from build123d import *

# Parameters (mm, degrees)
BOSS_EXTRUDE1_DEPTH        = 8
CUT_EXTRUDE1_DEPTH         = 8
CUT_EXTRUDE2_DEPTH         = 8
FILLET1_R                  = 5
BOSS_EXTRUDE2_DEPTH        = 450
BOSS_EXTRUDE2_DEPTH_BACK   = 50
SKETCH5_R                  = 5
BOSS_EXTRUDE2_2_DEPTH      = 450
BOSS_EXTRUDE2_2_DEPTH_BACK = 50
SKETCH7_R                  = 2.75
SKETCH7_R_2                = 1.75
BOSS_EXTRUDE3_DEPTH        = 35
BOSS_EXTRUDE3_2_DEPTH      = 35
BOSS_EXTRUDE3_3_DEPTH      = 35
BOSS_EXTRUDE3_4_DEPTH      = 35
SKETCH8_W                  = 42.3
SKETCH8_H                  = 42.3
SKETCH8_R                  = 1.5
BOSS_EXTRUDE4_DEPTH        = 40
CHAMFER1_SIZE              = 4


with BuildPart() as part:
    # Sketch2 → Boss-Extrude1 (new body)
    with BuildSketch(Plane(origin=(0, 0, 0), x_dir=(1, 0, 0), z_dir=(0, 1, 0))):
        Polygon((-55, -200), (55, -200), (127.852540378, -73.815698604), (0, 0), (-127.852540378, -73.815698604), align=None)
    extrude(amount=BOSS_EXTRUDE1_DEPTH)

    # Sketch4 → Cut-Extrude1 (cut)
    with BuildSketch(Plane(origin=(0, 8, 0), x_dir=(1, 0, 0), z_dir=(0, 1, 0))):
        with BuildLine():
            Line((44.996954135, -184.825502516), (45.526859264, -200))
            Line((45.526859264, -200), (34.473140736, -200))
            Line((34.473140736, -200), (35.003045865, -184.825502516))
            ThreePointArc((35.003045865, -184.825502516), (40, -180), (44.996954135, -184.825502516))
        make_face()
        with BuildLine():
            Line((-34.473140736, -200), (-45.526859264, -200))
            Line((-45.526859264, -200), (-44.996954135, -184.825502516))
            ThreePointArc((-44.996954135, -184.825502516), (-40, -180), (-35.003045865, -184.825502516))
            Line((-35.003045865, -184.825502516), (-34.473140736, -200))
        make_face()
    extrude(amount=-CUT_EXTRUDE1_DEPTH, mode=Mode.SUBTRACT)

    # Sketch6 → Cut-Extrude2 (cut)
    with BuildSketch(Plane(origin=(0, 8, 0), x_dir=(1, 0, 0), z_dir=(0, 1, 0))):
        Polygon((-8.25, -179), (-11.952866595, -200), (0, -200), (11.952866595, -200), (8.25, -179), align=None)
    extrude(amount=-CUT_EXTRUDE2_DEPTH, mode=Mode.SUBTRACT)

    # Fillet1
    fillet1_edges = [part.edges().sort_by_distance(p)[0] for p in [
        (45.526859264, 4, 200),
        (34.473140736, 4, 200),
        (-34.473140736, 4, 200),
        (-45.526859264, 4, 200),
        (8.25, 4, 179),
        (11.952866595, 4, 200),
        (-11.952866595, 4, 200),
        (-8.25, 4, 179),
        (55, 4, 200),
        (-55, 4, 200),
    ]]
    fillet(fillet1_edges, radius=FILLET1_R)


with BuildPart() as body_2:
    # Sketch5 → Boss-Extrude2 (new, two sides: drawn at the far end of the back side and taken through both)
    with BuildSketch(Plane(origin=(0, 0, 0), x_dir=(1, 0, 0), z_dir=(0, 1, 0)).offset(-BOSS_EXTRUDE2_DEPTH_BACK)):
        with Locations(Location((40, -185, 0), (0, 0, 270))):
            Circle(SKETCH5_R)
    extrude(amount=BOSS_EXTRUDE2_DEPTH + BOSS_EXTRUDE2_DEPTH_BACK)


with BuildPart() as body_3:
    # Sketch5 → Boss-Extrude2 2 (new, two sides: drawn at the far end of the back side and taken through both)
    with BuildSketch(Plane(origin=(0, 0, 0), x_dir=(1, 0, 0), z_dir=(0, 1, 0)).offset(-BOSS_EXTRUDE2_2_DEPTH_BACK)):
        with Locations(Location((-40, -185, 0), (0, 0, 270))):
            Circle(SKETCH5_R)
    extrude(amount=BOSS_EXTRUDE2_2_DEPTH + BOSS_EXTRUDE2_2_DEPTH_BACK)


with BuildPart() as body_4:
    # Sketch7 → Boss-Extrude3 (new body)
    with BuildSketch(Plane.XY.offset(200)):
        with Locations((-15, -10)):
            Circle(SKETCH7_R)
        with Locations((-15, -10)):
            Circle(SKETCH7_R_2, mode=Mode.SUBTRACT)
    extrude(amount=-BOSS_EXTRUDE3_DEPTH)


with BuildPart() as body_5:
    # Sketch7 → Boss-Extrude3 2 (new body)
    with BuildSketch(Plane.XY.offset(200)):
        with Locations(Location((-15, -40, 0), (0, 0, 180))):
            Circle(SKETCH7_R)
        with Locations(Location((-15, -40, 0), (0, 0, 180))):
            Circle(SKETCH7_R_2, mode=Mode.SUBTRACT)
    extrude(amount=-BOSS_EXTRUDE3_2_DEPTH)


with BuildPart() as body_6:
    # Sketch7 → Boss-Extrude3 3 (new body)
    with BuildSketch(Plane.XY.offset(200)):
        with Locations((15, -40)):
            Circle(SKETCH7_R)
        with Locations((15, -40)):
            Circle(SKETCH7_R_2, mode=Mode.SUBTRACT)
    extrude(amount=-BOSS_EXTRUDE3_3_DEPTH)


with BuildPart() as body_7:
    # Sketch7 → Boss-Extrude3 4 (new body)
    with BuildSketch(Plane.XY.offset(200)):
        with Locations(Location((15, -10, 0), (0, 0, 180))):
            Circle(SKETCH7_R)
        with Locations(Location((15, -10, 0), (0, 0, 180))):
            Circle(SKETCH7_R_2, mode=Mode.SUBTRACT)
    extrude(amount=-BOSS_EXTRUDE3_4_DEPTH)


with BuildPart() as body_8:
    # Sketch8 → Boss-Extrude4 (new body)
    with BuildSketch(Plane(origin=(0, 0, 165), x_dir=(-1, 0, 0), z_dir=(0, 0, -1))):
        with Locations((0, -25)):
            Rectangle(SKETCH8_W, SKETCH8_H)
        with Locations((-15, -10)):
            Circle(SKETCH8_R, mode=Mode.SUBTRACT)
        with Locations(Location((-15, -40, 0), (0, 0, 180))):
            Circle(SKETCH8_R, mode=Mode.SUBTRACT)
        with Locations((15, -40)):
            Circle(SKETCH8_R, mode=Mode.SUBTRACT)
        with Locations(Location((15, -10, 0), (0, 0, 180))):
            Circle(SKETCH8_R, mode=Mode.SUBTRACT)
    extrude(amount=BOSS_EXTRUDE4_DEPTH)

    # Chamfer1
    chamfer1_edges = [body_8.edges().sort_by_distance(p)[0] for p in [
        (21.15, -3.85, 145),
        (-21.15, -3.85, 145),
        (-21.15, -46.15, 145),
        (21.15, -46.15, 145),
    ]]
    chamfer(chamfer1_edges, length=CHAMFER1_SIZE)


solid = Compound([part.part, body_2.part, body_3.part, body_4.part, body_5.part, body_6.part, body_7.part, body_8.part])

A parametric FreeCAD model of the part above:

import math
import FreeCAD as App
import Part
import Sketcher
Q = App.Units.Quantity


def edges_at(feature, points):
    """Names of the edges that pass closest to the given points."""
    edges = feature.Shape.Edges
    near = lambda p: min(range(len(edges)), key=lambda i: edges[i].distToShape(Part.Vertex(*p))[0])
    return sorted({f"Edge{near(p) + 1}" for p in points})


def add_polygon(sketch, points):
    """Adds a closed chain of lines whose ends are joined by coincident constraints."""
    first, n = sketch.GeometryCount, len(points)
    for a, b in zip(points, points[1:] + points[:1]):
        sketch.addGeometry(Part.LineSegment(App.Vector(*a, 0), App.Vector(*b, 0)), False)
    for i in range(n):
        sketch.addConstraint(Sketcher.Constraint("Coincident", first + i, 2, first + (i + 1) % n, 1))

doc = App.newDocument("Part")
body = doc.addObject("PartDesign::Body", "Body")

sketch1 = doc.addObject("Sketcher::SketchObject", "Sketch")
body.addObject(sketch1)
sketch1.AttachmentSupport = (doc.XZ_Plane, [""])
sketch1.MapMode = "FlatFace"
add_polygon(sketch1, [(-55, 200), (55, 200), (128, 74), (0, 0), (-128, 74)])
sketch1.addConstraint(Sketcher.Constraint("Horizontal", 0))
sketch1.addConstraint(Sketcher.Constraint("Coincident", 2, 2, -1, 1))
sketch1.addConstraint(Sketcher.Constraint("Symmetric", 1, 2, 3, 2, -2))
sketch1.addConstraint(Sketcher.Constraint("Perpendicular", 1, 2))
sketch1.addConstraint(Sketcher.Constraint("Perpendicular", 3, 4))
sketch1.addConstraint(Sketcher.Constraint("DistanceX", 0, 1, 0, 2, 110.0))
sketch1.addConstraint(Sketcher.Constraint("Angle", 1, Q("-60 deg")))
sketch1.addConstraint(Sketcher.Constraint("DistanceY", -1, 1, 0, 2, 200.0))
pad1 = doc.addObject("PartDesign::Pad", "Pad")
body.addObject(pad1)
pad1.Profile = sketch1
pad1.Length = 8
pad1.Reversed = True

sketch2 = doc.addObject("Sketcher::SketchObject", "Sketch001")
body.addObject(sketch2)
sketch2.AttachmentSupport = (doc.XZ_Plane, [""])
sketch2.MapMode = "FlatFace"
sketch2.AttachmentOffset = App.Placement(App.Vector(0, 0, -8), App.Rotation())
sketch2.addGeometry(Part.LineSegment(App.Vector(45.526859, 200, 0), App.Vector(44.996954, 184.825503, 0)), False)
sketch2.addGeometry(Part.ArcOfCircle(Part.Circle(App.Vector(40, 185, 0), App.Vector(0, 0, 1), 5), math.radians(-178), math.radians(-2)), False)
sketch2.addGeometry(Part.LineSegment(App.Vector(35.003046, 184.825503, 0), App.Vector(34.473141, 200, 0)), False)
sketch2.addGeometry(Part.LineSegment(App.Vector(34.473141, 200, 0), App.Vector(45.526859, 200, 0)), False)
sketch2.addGeometry(Part.LineSegment(App.Vector(-45.526859, 200, 0), App.Vector(-34.473141, 200, 0)), False)
sketch2.addGeometry(Part.LineSegment(App.Vector(-34.473141, 200, 0), App.Vector(-35.003046, 184.825503, 0)), False)
sketch2.addGeometry(Part.ArcOfCircle(Part.Circle(App.Vector(-40, 185, 0), App.Vector(0, 0, 1), 5), math.radians(-178), math.radians(-2)), False)
sketch2.addGeometry(Part.LineSegment(App.Vector(-44.996954, 184.825503, 0), App.Vector(-45.526859, 200, 0)), False)
sketch2.addConstraint(Sketcher.Constraint("Tangent", 0, 2, 1, 2))
sketch2.addConstraint(Sketcher.Constraint("Tangent", 1, 1, 2, 1))
sketch2.addConstraint(Sketcher.Constraint("Coincident", 2, 2, 3, 1))
sketch2.addConstraint(Sketcher.Constraint("Coincident", 3, 2, 0, 1))
sketch2.addConstraint(Sketcher.Constraint("Coincident", 4, 2, 5, 1))
sketch2.addConstraint(Sketcher.Constraint("Tangent", 5, 2, 6, 2))
sketch2.addConstraint(Sketcher.Constraint("Tangent", 6, 1, 7, 1))
sketch2.addConstraint(Sketcher.Constraint("Coincident", 7, 2, 4, 1))
sketch2.addConstraint(Sketcher.Constraint("Horizontal", 3))
sketch2.addConstraint(Sketcher.Constraint("Horizontal", 4))
sketch2.addConstraint(Sketcher.Constraint("Equal", 1, 6))
sketch2.addConstraint(Sketcher.Constraint("Symmetric", 1, 3, 6, 3, -2))
sketch2.addConstraint(Sketcher.Constraint("Symmetric", 2, 2, 4, 2, -2))
sketch2.addConstraint(Sketcher.Constraint("Parallel", 0, 5))
sketch2.addConstraint(Sketcher.Constraint("Parallel", 2, 7))
sketch2.addConstraint(Sketcher.Constraint("Radius", 1, 5.0))
sketch2.addConstraint(Sketcher.Constraint("Angle", 0, Q("-92 deg")))
sketch2.addConstraint(Sketcher.Constraint("DistanceX", -1, 1, 1, 3, 40.0))
sketch2.addConstraint(Sketcher.Constraint("DistanceY", -1, 1, 1, 3, 185.0))
sketch2.addConstraint(Sketcher.Constraint("DistanceY", -1, 1, 2, 2, 200.0))
pocket1 = doc.addObject("PartDesign::Pocket", "Pocket")
body.addObject(pocket1)
pocket1.Profile = sketch2
pocket1.Length = 8
pocket1.Reversed = True

sketch3 = doc.addObject("Sketcher::SketchObject", "Sketch002")
body.addObject(sketch3)
sketch3.AttachmentSupport = (doc.XZ_Plane, [""])
sketch3.MapMode = "FlatFace"
sketch3.AttachmentOffset = App.Placement(App.Vector(0, 0, -8), App.Rotation())
add_polygon(sketch3, [(-8, 179), (-12, 200), (12, 200), (8, 179)])
sketch3.addConstraint(Sketcher.Constraint("Horizontal", 1))
sketch3.addConstraint(Sketcher.Constraint("Horizontal", 3))
sketch3.addConstraint(Sketcher.Constraint("Equal", 0, 2))
sketch3.addConstraint(Sketcher.Constraint("Angle", 0, Q("100 deg")))
sketch3.addConstraint(Sketcher.Constraint("DistanceX", 3, 2, 3, 1, 16.5))
sketch3.addConstraint(Sketcher.Constraint("DistanceY", -1, 1, 0, 2, 200.0))
sketch3.addConstraint(Sketcher.Constraint("DistanceY", -1, 1, 2, 2, 179.0))
sketch3.addConstraint(Sketcher.Constraint("DistanceX", -1, 1, 2, 2, 8.25))
pocket2 = doc.addObject("PartDesign::Pocket", "Pocket001")
body.addObject(pocket2)
pocket2.Profile = sketch3
pocket2.Length = 8
pocket2.Reversed = True
doc.recompute()

fillet = doc.addObject("PartDesign::Fillet", "Fillet")
body.addObject(fillet)
fillet.Base = (pocket2, edges_at(pocket2, [
    (45.527, 4, 200),
    (34.473, 4, 200),
    (-34.473, 4, 200),
    (-45.527, 4, 200),
    (8.25, 4, 179),
    (11.953, 4, 200),
    (-11.953, 4, 200),
    (-8.25, 4, 179),
    (55, 4, 200),
    (-55, 4, 200),
]))
fillet.Radius = 5
body2 = doc.addObject("PartDesign::Body", "Body001")

sketch4 = doc.addObject("Sketcher::SketchObject", "Sketch003")
body2.addObject(sketch4)
sketch4.AttachmentSupport = (doc.getObject("XZ_Plane001"), [""])
sketch4.MapMode = "FlatFace"
sketch4.addGeometry(Part.Circle(App.Vector(40, 185, 0), App.Vector(0, 0, 1), 5), False)
sketch4.addConstraint(Sketcher.Constraint("Diameter", 0, 10.0))
sketch4.addConstraint(Sketcher.Constraint("DistanceX", -1, 1, 0, 3, 40.0))
sketch4.addConstraint(Sketcher.Constraint("DistanceY", -1, 1, 0, 3, 185.0))
pad2 = doc.addObject("PartDesign::Pad", "Pad001")
body2.addObject(pad2)
pad2.Profile = sketch4
pad2.Type = "TwoLengths"
pad2.Length = 450
pad2.Length2 = 50
pad2.Reversed = True
body3 = doc.addObject("PartDesign::Body", "Body002")

sketch5 = doc.addObject("Sketcher::SketchObject", "Sketch004")
body3.addObject(sketch5)
sketch5.AttachmentSupport = (doc.getObject("XZ_Plane002"), [""])
sketch5.MapMode = "FlatFace"
sketch5.addGeometry(Part.Circle(App.Vector(-40, 185, 0), App.Vector(0, 0, 1), 5), False)
sketch5.addConstraint(Sketcher.Constraint("Diameter", 0, 10.0))
sketch5.addConstraint(Sketcher.Constraint("DistanceX", 0, 3, -1, 1, 40.0))
sketch5.addConstraint(Sketcher.Constraint("DistanceY", -1, 1, 0, 3, 185.0))
pad3 = doc.addObject("PartDesign::Pad", "Pad002")
body3.addObject(pad3)
pad3.Profile = sketch5
pad3.Type = "TwoLengths"
pad3.Length = 450
pad3.Length2 = 50
pad3.Reversed = True
body4 = doc.addObject("PartDesign::Body", "Body003")

sketch6 = doc.addObject("Sketcher::SketchObject", "Sketch005")
body4.addObject(sketch6)
sketch6.AttachmentSupport = (doc.getObject("XY_Plane003"), [""])
sketch6.MapMode = "FlatFace"
sketch6.AttachmentOffset = App.Placement(App.Vector(0, 0, 200), App.Rotation())
sketch6.addGeometry(Part.Circle(App.Vector(-15, -10, 0), App.Vector(0, 0, 1), 2.8), False)
sketch6.addGeometry(Part.Circle(App.Vector(-15, -10, 0), App.Vector(0, 0, 1), 1.8), False)
sketch6.addConstraint(Sketcher.Constraint("Coincident", 1, 3, 0, 3))
sketch6.addConstraint(Sketcher.Constraint("Diameter", 0, 5.5))
sketch6.addConstraint(Sketcher.Constraint("Diameter", 1, 3.5))
sketch6.addConstraint(Sketcher.Constraint("DistanceX", 0, 3, -1, 1, 15.0))
sketch6.addConstraint(Sketcher.Constraint("DistanceY", 0, 3, -1, 1, 10.0))
pad4 = doc.addObject("PartDesign::Pad", "Pad003")
body4.addObject(pad4)
pad4.Profile = sketch6
pad4.Length = 35
pad4.Reversed = True
body5 = doc.addObject("PartDesign::Body", "Body004")

sketch7 = doc.addObject("Sketcher::SketchObject", "Sketch006")
body5.addObject(sketch7)
sketch7.AttachmentSupport = (doc.getObject("XY_Plane004"), [""])
sketch7.MapMode = "FlatFace"
sketch7.AttachmentOffset = App.Placement(App.Vector(0, 0, 200), App.Rotation())
sketch7.addGeometry(Part.Circle(App.Vector(-15, -40, 0), App.Vector(0, 0, 1), 2.8), False)
sketch7.addGeometry(Part.Circle(App.Vector(-15, -40, 0), App.Vector(0, 0, 1), 1.8), False)
sketch7.addConstraint(Sketcher.Constraint("Coincident", 1, 3, 0, 3))
sketch7.addConstraint(Sketcher.Constraint("Diameter", 0, 5.5))
sketch7.addConstraint(Sketcher.Constraint("Diameter", 1, 3.5))
sketch7.addConstraint(Sketcher.Constraint("DistanceX", 0, 3, -1, 1, 15.0))
sketch7.addConstraint(Sketcher.Constraint("DistanceY", 0, 3, -1, 1, 40.0))
pad5 = doc.addObject("PartDesign::Pad", "Pad004")
body5.addObject(pad5)
pad5.Profile = sketch7
pad5.Length = 35
pad5.Reversed = True
body6 = doc.addObject("PartDesign::Body", "Body005")

sketch8 = doc.addObject("Sketcher::SketchObject", "Sketch007")
body6.addObject(sketch8)
sketch8.AttachmentSupport = (doc.getObject("XY_Plane005"), [""])
sketch8.MapMode = "FlatFace"
sketch8.AttachmentOffset = App.Placement(App.Vector(0, 0, 200), App.Rotation())
sketch8.addGeometry(Part.Circle(App.Vector(15, -40, 0), App.Vector(0, 0, 1), 2.8), False)
sketch8.addGeometry(Part.Circle(App.Vector(15, -40, 0), App.Vector(0, 0, 1), 1.8), False)
sketch8.addConstraint(Sketcher.Constraint("Coincident", 1, 3, 0, 3))
sketch8.addConstraint(Sketcher.Constraint("Diameter", 0, 5.5))
sketch8.addConstraint(Sketcher.Constraint("Diameter", 1, 3.5))
sketch8.addConstraint(Sketcher.Constraint("DistanceX", -1, 1, 0, 3, 15.0))
sketch8.addConstraint(Sketcher.Constraint("DistanceY", 0, 3, -1, 1, 40.0))
pad6 = doc.addObject("PartDesign::Pad", "Pad005")
body6.addObject(pad6)
pad6.Profile = sketch8
pad6.Length = 35
pad6.Reversed = True
body7 = doc.addObject("PartDesign::Body", "Body006")

sketch9 = doc.addObject("Sketcher::SketchObject", "Sketch008")
body7.addObject(sketch9)
sketch9.AttachmentSupport = (doc.getObject("XY_Plane006"), [""])
sketch9.MapMode = "FlatFace"
sketch9.AttachmentOffset = App.Placement(App.Vector(0, 0, 200), App.Rotation())
sketch9.addGeometry(Part.Circle(App.Vector(15, -10, 0), App.Vector(0, 0, 1), 2.8), False)
sketch9.addGeometry(Part.Circle(App.Vector(15, -10, 0), App.Vector(0, 0, 1), 1.8), False)
sketch9.addConstraint(Sketcher.Constraint("Coincident", 1, 3, 0, 3))
sketch9.addConstraint(Sketcher.Constraint("Diameter", 0, 5.5))
sketch9.addConstraint(Sketcher.Constraint("Diameter", 1, 3.5))
sketch9.addConstraint(Sketcher.Constraint("DistanceX", -1, 1, 0, 3, 15.0))
sketch9.addConstraint(Sketcher.Constraint("DistanceY", 0, 3, -1, 1, 10.0))
pad7 = doc.addObject("PartDesign::Pad", "Pad006")
body7.addObject(pad7)
pad7.Profile = sketch9
pad7.Length = 35
pad7.Reversed = True
body8 = doc.addObject("PartDesign::Body", "Body007")

sketch10 = doc.addObject("Sketcher::SketchObject", "Sketch009")
body8.addObject(sketch10)
sketch10.AttachmentSupport = (doc.getObject("XY_Plane007"), [""])
sketch10.MapMode = "FlatFace"
sketch10.AttachmentOffset = App.Placement(App.Vector(0, 0, 165), App.Rotation())
add_polygon(sketch10, [(21.1, -3.9), (21.1, -46.1), (-21.1, -46.1), (-21.1, -3.9)])
sketch10.addGeometry(Part.Circle(App.Vector(15, -40, 0), App.Vector(0, 0, 1), 1.5), False)
sketch10.addGeometry(Part.Circle(App.Vector(-15, -40, 0), App.Vector(0, 0, 1), 1.5), False)
sketch10.addGeometry(Part.Circle(App.Vector(15, -10, 0), App.Vector(0, 0, 1), 1.5), False)
sketch10.addGeometry(Part.Circle(App.Vector(-15, -10, 0), App.Vector(0, 0, 1), 1.5), False)
sketch10.addConstraint(Sketcher.Constraint("Vertical", 0))
sketch10.addConstraint(Sketcher.Constraint("Horizontal", 1))
sketch10.addConstraint(Sketcher.Constraint("Vertical", 2))
sketch10.addConstraint(Sketcher.Constraint("Horizontal", 3))
sketch10.addConstraint(Sketcher.Constraint("Equal", 4, 5))
sketch10.addConstraint(Sketcher.Constraint("Equal", 5, 6))
sketch10.addConstraint(Sketcher.Constraint("Equal", 6, 7))
sketch10.addConstraint(Sketcher.Constraint("Symmetric", 4, 3, 5, 3, -2))
sketch10.addConstraint(Sketcher.Constraint("Symmetric", 6, 3, 7, 3, -2))
sketch10.addConstraint(Sketcher.Constraint("Vertical", 4, 3, 6, 3))
sketch10.addConstraint(Sketcher.Constraint("Equal", 3, 0))
sketch10.addConstraint(Sketcher.Constraint("Diameter", 4, 3.0))
sketch10.addConstraint(Sketcher.Constraint("DistanceX", 1, 2, 1, 1, 42.3))
sketch10.addConstraint(Sketcher.Constraint("DistanceX", -1, 1, 4, 3, 15.0))
sketch10.addConstraint(Sketcher.Constraint("DistanceY", 4, 3, -1, 1, 40.0))
sketch10.addConstraint(Sketcher.Constraint("DistanceY", 6, 3, -1, 1, 10.0))
sketch10.addConstraint(Sketcher.Constraint("DistanceX", -1, 1, 0, 2, 21.15))
sketch10.addConstraint(Sketcher.Constraint("DistanceY", 0, 2, -1, 1, 46.15))
pad8 = doc.addObject("PartDesign::Pad", "Pad007")
body8.addObject(pad8)
pad8.Profile = sketch10
pad8.Length = 40
pad8.Reversed = True
doc.recompute()

chamfer = doc.addObject("PartDesign::Chamfer", "Chamfer")
body8.addObject(chamfer)
chamfer.Base = (pad8, edges_at(pad8, [
    (21.15, -3.85, 145),
    (-21.15, -3.85, 145),
    (-21.15, -46.15, 145),
    (21.15, -46.15, 145),
]))
chamfer.Size = 4

doc.recompute()
